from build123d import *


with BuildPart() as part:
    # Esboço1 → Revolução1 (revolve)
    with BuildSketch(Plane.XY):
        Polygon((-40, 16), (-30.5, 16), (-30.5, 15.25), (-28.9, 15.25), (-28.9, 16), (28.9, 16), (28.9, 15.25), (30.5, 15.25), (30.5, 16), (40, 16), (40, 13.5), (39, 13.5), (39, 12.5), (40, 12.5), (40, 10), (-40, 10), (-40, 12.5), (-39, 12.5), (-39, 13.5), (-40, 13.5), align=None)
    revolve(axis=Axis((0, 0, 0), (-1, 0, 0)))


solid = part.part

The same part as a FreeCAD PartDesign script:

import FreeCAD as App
import Part
import Sketcher

V = App.Vector


def add_polygon(sketch, points):
    """Adds a closed chain of lines whose ends are joined by coincident constraints."""
    first, n = sketch.GeometryCount, len(points)
    for a, b in zip(points, points[1:] + points[:1]):
        sketch.addGeometry(Part.LineSegment(App.Vector(*a, 0), App.Vector(*b, 0)), False)
    for i in range(n):
        sketch.addConstraint(Sketcher.Constraint("Coincident", first + i, 2, first + (i + 1) % n, 1))

doc = App.newDocument("Part")
body = doc.addObject("PartDesign::Body", "Body")

# Sketch on XY plane
sketch1 = body.newObject("Sketcher::SketchObject", "Sketch")
sketch1.AttachmentSupport = (doc.getObject("XY_Plane"), [""])
sketch1.MapMode = "FlatFace"
add_polygon(sketch1, [(-30.5, 16), (-40, 16), (-40, 13.5), (-39, 13.5), (-39, 12.5), (-40, 12.5), (-40, 10), (40, 10), (40, 12.5), (39, 12.5), (39, 13.5), (40, 13.5), (40, 16), (30.5, 16), (30.5, 15.2), (28.9, 15.2), (28.9, 16), (-28.9, 16), (-28.9, 15.2), (-30.5, 15.2)])  # lines 0-19
sketch1.addConstraint([
    Sketcher.Constraint("Horizontal", 0),
    Sketcher.Constraint("Vertical", 1),
    Sketcher.Constraint("Horizontal", 2),
    Sketcher.Constraint("Vertical", 3),
    Sketcher.Constraint("Horizontal", 4),
    Sketcher.Constraint("Vertical", 5),
    Sketcher.Constraint("Horizontal", 6),
    Sketcher.Constraint("Vertical", 7),
    Sketcher.Constraint("Horizontal", 8),
    Sketcher.Constraint("Vertical", 9),
    Sketcher.Constraint("Horizontal", 10),
    Sketcher.Constraint("Vertical", 11),
    Sketcher.Constraint("Horizontal", 12),
    Sketcher.Constraint("Vertical", 13),
    Sketcher.Constraint("Horizontal", 14),
    Sketcher.Constraint("Vertical", 15),
    Sketcher.Constraint("Horizontal", 16),
    Sketcher.Constraint("Vertical", 17),
    Sketcher.Constraint("Horizontal", 18),
    Sketcher.Constraint("Vertical", 19),
    Sketcher.Constraint("Symmetric", 4, 2, 7, 2, -2),
    Sketcher.Constraint("Symmetric", 2, 2, 9, 2, -2),
    Sketcher.Constraint("Symmetric", 0, 2, 11, 2, -2),
    Sketcher.Constraint("Symmetric", 14, 2, 17, 2, -2),
    Sketcher.Constraint("Horizontal", 12, 2, 15, 2),
    Sketcher.Constraint("Vertical", 1, 2, 4, 2),
    Sketcher.Constraint("Equal", 0, 12),
    Sketcher.Constraint("Equal", 10, 3),
    Sketcher.Constraint("Equal", 1, 5),
    Sketcher.Constraint("DistanceX", 2, 1, 2, 2, 1.0),
    Sketcher.Constraint("DistanceX", 6, 1, 6, 2, 80.0),
    Sketcher.Constraint("DistanceX", 0, 2, 0, 1, 9.5),
    Sketcher.Constraint("DistanceX", 14, 2, 14, 1, 1.6),
    Sketcher.Constraint("DistanceY", 1, 2, 1, 1, 2.5),
    Sketcher.Constraint("DistanceY", -1, 1, 0, 2, 16.0),
    Sketcher.Constraint("DistanceY", 13, 2, 13, 1, 0.75),
])
revolution = body.newObject("PartDesign::Revolution", "Revolution")
revolution.Profile = sketch1
revolution.ReferenceAxis = (sketch1, ["H_Axis"])
revolution.Angle = 360

doc.recompute()
